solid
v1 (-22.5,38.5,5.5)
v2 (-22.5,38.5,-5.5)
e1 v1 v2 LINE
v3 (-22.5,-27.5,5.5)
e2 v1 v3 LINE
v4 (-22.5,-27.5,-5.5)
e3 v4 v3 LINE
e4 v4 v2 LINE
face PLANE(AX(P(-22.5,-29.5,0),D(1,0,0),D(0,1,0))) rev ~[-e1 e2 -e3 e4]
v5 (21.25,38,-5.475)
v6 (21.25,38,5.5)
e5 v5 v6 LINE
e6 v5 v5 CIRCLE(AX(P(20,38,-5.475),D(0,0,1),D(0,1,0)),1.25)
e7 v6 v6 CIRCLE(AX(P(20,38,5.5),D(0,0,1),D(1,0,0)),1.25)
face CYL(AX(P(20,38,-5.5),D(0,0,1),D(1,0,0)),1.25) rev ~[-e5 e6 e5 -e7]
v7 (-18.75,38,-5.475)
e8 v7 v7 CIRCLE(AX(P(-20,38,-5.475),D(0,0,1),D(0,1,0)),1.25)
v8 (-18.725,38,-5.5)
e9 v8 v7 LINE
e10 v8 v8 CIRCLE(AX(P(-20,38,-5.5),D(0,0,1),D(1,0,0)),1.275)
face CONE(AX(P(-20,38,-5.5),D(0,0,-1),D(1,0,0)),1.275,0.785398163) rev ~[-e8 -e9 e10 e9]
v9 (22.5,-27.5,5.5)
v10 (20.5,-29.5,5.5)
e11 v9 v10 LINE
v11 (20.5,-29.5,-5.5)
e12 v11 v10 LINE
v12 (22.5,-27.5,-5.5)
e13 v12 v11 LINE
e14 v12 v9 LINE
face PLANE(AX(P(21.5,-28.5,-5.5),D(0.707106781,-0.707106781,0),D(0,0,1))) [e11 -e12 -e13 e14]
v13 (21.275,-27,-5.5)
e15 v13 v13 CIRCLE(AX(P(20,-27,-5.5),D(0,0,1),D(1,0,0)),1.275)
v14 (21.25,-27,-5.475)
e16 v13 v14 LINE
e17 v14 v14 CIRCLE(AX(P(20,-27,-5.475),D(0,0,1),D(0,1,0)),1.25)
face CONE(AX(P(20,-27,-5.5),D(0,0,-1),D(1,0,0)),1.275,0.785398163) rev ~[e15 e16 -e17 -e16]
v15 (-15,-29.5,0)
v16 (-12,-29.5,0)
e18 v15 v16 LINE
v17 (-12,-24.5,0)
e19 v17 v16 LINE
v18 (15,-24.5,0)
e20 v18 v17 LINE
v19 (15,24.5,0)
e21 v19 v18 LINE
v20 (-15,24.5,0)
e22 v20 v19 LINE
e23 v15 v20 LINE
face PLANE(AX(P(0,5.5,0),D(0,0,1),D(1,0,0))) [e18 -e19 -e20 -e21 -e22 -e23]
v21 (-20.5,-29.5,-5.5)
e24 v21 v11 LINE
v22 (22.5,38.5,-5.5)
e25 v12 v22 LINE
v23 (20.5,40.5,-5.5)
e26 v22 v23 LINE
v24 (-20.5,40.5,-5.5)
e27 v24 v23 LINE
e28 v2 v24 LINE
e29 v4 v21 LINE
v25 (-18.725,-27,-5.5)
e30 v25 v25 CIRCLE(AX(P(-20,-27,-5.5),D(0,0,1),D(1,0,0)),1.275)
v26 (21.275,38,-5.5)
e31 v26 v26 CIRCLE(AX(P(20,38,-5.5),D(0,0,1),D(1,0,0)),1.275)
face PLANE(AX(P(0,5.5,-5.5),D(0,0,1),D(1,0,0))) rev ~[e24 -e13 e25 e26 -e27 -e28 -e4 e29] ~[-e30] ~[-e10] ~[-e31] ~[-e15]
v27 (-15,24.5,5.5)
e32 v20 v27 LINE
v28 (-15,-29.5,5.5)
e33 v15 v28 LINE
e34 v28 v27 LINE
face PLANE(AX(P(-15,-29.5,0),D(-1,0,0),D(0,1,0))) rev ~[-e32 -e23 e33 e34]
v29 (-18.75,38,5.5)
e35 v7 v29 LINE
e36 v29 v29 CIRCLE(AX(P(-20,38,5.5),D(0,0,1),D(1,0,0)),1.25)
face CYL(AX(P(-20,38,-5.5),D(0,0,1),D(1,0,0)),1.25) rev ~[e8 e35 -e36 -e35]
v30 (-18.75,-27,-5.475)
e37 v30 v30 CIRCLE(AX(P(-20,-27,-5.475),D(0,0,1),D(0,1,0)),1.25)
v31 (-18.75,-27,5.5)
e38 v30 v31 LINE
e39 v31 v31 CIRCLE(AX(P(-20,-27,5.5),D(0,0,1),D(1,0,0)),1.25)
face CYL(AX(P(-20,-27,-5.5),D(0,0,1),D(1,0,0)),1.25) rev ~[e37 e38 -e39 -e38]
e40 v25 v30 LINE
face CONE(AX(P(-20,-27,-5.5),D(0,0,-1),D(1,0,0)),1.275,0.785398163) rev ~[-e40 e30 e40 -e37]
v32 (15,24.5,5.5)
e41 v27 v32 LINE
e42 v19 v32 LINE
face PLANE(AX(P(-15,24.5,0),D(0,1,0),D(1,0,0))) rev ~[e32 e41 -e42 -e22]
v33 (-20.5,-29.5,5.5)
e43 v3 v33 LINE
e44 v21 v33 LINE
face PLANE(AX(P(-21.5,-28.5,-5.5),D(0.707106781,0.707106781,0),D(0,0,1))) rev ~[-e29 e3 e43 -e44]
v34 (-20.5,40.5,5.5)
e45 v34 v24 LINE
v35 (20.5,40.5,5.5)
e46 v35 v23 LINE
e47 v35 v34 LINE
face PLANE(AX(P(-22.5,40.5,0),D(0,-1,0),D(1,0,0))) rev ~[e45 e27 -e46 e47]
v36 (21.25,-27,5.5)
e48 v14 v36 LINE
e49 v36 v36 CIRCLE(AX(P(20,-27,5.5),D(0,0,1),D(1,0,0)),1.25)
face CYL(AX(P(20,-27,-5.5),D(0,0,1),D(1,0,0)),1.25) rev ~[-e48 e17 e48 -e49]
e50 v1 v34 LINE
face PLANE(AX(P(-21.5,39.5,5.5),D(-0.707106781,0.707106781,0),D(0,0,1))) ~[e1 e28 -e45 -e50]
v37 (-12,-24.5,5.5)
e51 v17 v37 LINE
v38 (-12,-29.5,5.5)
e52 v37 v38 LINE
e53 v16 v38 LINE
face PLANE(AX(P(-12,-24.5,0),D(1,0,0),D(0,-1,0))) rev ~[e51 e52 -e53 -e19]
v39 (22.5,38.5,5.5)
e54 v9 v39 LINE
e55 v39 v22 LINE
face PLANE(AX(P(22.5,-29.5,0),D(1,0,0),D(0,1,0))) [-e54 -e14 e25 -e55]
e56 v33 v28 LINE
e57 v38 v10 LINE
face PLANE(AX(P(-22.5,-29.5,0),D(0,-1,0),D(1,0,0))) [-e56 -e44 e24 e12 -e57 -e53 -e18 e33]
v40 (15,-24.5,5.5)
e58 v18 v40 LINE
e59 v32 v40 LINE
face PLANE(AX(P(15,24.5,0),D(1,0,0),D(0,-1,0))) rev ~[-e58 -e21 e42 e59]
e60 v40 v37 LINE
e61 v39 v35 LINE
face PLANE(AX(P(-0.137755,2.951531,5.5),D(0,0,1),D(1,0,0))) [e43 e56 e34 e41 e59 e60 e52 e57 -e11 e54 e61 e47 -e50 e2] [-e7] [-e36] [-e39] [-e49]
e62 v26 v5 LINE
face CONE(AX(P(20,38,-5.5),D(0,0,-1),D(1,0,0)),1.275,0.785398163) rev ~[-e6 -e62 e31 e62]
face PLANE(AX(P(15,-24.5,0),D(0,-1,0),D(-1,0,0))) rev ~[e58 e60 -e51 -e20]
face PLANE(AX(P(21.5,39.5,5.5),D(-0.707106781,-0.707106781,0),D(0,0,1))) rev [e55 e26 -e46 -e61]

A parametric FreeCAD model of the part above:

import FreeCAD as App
import Part
import Sketcher
Q = App.Units.Quantity


def edges_at(feature, points):
    """Names of the edges that pass closest to the given points."""
    edges = feature.Shape.Edges
    near = lambda p: min(range(len(edges)), key=lambda i: edges[i].distToShape(Part.Vertex(*p))[0])
    return sorted({f"Edge{near(p) + 1}" for p in points})

doc = App.newDocument("Part")
body = doc.addObject("PartDesign::Body", "Body")

# Sketch on XY plane
sketch1 = body.newObject("Sketcher::SketchObject", "Sketch")
sketch1.AttachmentSupport = (doc.getObject("XY_Plane"), [""])
sketch1.MapMode = "FlatFace"
sketch1.addGeometry(Part.LineSegment(App.Vector(-12, -30, 0), App.Vector(22, -30, 0)), False)
sketch1.addGeometry(Part.LineSegment(App.Vector(22, -30, 0), App.Vector(22, 40, 0)), False)
sketch1.addGeometry(Part.LineSegment(App.Vector(22, 40, 0), App.Vector(-22, 40, 0)), False)
sketch1.addGeometry(Part.LineSegment(App.Vector(-22, 40, 0), App.Vector(-22, -30, 0)), False)
sketch1.addGeometry(Part.LineSegment(App.Vector(-22, -30, 0), App.Vector(-15, -30, 0)), False)
sketch1.addGeometry(Part.LineSegment(App.Vector(-15, -30, 0), App.Vector(-15, 24, 0)), False)
sketch1.addGeometry(Part.LineSegment(App.Vector(-15, 24, 0), App.Vector(15, 24, 0)), False)
sketch1.addGeometry(Part.LineSegment(App.Vector(15, 24, 0), App.Vector(15, -24, 0)), False)
sketch1.addGeometry(Part.LineSegment(App.Vector(15, -24, 0), App.Vector(-12, -24, 0)), False)
sketch1.addGeometry(Part.LineSegment(App.Vector(-12, -24, 0), App.Vector(-12, -30, 0)), False)
sketch1.addConstraint(Sketcher.Constraint("Coincident", 0, 2, 1, 1))
sketch1.addConstraint(Sketcher.Constraint("Coincident", 1, 2, 2, 1))
sketch1.addConstraint(Sketcher.Constraint("Coincident", 2, 2, 3, 1))
sketch1.addConstraint(Sketcher.Constraint("Coincident", 3, 2, 4, 1))
sketch1.addConstraint(Sketcher.Constraint("Coincident", 4, 2, 5, 1))
sketch1.addConstraint(Sketcher.Constraint("Coincident", 5, 2, 6, 1))
sketch1.addConstraint(Sketcher.Constraint("Coincident", 6, 2, 7, 1))
sketch1.addConstraint(Sketcher.Constraint("Coincident", 7, 2, 8, 1))
sketch1.addConstraint(Sketcher.Constraint("Coincident", 8, 2, 9, 1))
sketch1.addConstraint(Sketcher.Constraint("Coincident", 9, 2, 0, 1))
sketch1.addConstraint(Sketcher.Constraint("Horizontal", 0))
sketch1.addConstraint(Sketcher.Constraint("Vertical", 1))
sketch1.addConstraint(Sketcher.Constraint("Horizontal", 2))
sketch1.addConstraint(Sketcher.Constraint("Vertical", 3))
sketch1.addConstraint(Sketcher.Constraint("Horizontal", 4))
sketch1.addConstraint(Sketcher.Constraint("Vertical", 5))
sketch1.addConstraint(Sketcher.Constraint("Horizontal", 6))
sketch1.addConstraint(Sketcher.Constraint("Vertical", 7))
sketch1.addConstraint(Sketcher.Constraint("Horizontal", 8))
sketch1.addConstraint(Sketcher.Constraint("Vertical", 9))
sketch1.addConstraint(Sketcher.Constraint("Symmetric", 5, 2, 7, 2, -1, 1))
sketch1.addConstraint(Sketcher.Constraint("Symmetric", 0, 2, 3, 2, -2))
sketch1.addConstraint(Sketcher.Constraint("DistanceX", 2, 2, 2, 1, Q("45 mm")))
sketch1.addConstraint(Sketcher.Constraint("DistanceX", 6, 1, 6, 2, Q("30 mm")))
sketch1.addConstraint(Sketcher.Constraint("DistanceX", 8, 2, 8, 1, Q("27 mm")))
sketch1.addConstraint(Sketcher.Constraint("DistanceY", 1, 1, 1, 2, Q("70 mm")))
sketch1.addConstraint(Sketcher.Constraint("DistanceY", 5, 1, 5, 2, Q("54 mm")))
sketch1.addConstraint(Sketcher.Constraint("DistanceY", 7, 2, 7, 1, Q("49 mm")))
pad1 = body.newObject("PartDesign::Pad", "Pad")
pad1.Profile = sketch1
pad1.Length = 5.5

# Sketch on XY plane
sketch2 = body.newObject("Sketcher::SketchObject", "Sketch001")
sketch2.AttachmentSupport = (doc.getObject("XY_Plane"), [""])
sketch2.MapMode = "FlatFace"
sketch2.addGeometry(Part.LineSegment(App.Vector(-22, 40, 0), App.Vector(-22, -30, 0)), False)
sketch2.addGeometry(Part.LineSegment(App.Vector(-22, -30, 0), App.Vector(22, -30, 0)), False)
sketch2.addGeometry(Part.LineSegment(App.Vector(22, -30, 0), App.Vector(22, 40, 0)), False)
sketch2.addGeometry(Part.LineSegment(App.Vector(22, 40, 0), App.Vector(-22, 40, 0)), False)
sketch2.addConstraint(Sketcher.Constraint("Coincident", 0, 2, 1, 1))
sketch2.addConstraint(Sketcher.Constraint("Coincident", 1, 2, 2, 1))
sketch2.addConstraint(Sketcher.Constraint("Coincident", 2, 2, 3, 1))
sketch2.addConstraint(Sketcher.Constraint("Coincident", 3, 2, 0, 1))
sketch2.addConstraint(Sketcher.Constraint("Vertical", 0))
sketch2.addConstraint(Sketcher.Constraint("Horizontal", 1))
sketch2.addConstraint(Sketcher.Constraint("Vertical", 2))
sketch2.addConstraint(Sketcher.Constraint("Horizontal", 3))
sketch2.addConstraint(Sketcher.Constraint("DistanceX", 1, 1, 1, 2, Q("45 mm")))
sketch2.addConstraint(Sketcher.Constraint("DistanceY", 0, 2, 0, 1, Q("70 mm")))
sketch2.addConstraint(Sketcher.Constraint("DistanceX", 0, 2, -1, 1, Q("22.5 mm")))
sketch2.addConstraint(Sketcher.Constraint("DistanceY", 0, 2, -1, 1, Q("29.5 mm")))
pad2 = body.newObject("PartDesign::Pad", "Pad001")
pad2.Profile = sketch2
pad2.Length = 5.5
pad2.Reversed = True

# Sketch on XY plane
sketch3 = body.newObject("Sketcher::SketchObject", "Sketch002")
sketch3.AttachmentSupport = (doc.getObject("XY_Plane"), [""])
sketch3.MapMode = "FlatFace"
sketch3.AttachmentOffset = App.Placement(App.Vector(0, 0, -5.5), App.Rotation())
sketch3.addGeometry(Part.Circle(App.Vector(-20, 38, 0), App.Vector(0, 0, 1), 1.2), False)
sketch3.addGeometry(Part.Circle(App.Vector(20, 38, 0), App.Vector(0, 0, 1), 1.2), False)
sketch3.addGeometry(Part.Circle(App.Vector(20, -27, 0), App.Vector(0, 0, 1), 1.2), False)
sketch3.addGeometry(Part.Circle(App.Vector(-20, -27, 0), App.Vector(0, 0, 1), 1.2), False)
sketch3.addConstraint(Sketcher.Constraint("Equal", 0, 1))
sketch3.addConstraint(Sketcher.Constraint("Equal", 1, 2))
sketch3.addConstraint(Sketcher.Constraint("Equal", 2, 3))
sketch3.addConstraint(Sketcher.Constraint("Symmetric", 0, 3, 1, 3, -2))
sketch3.addConstraint(Sketcher.Constraint("Symmetric", 2, 3, 3, 3, -2))
sketch3.addConstraint(Sketcher.Constraint("Vertical", 1, 3, 2, 3))
sketch3.addConstraint(Sketcher.Constraint("Diameter", 0, Q("2.5 mm")))
sketch3.addConstraint(Sketcher.Constraint("DistanceX", 0, 3, -1, 1, Q("20 mm")))
sketch3.addConstraint(Sketcher.Constraint("DistanceY", -1, 1, 0, 3, Q("38 mm")))
sketch3.addConstraint(Sketcher.Constraint("DistanceY", 2, 3, -1, 1, Q("27 mm")))
doc.recompute()
hole = body.newObject("PartDesign::Hole", "Hole")
hole.Profile = sketch3
hole.ThreadType = "None"
hole.Diameter = 2.5
hole.DepthType = "ThroughAll"
hole.HoleCutType = "Countersink"
hole.HoleCutDiameter = 2.55
hole.HoleCutCountersinkAngle = 90
hole.Reversed = True
doc.recompute()

chamfer = body.newObject("PartDesign::Chamfer", "Chamfer")
chamfer.Base = (hole, edges_at(hole, [
    (-22.5, -29.5, 0),
    (-22.5, 40.5, 0),
    (22.5, 40.5, 0),
    (22.5, -29.5, 0),
]))
chamfer.Size = 2

doc.recompute()
